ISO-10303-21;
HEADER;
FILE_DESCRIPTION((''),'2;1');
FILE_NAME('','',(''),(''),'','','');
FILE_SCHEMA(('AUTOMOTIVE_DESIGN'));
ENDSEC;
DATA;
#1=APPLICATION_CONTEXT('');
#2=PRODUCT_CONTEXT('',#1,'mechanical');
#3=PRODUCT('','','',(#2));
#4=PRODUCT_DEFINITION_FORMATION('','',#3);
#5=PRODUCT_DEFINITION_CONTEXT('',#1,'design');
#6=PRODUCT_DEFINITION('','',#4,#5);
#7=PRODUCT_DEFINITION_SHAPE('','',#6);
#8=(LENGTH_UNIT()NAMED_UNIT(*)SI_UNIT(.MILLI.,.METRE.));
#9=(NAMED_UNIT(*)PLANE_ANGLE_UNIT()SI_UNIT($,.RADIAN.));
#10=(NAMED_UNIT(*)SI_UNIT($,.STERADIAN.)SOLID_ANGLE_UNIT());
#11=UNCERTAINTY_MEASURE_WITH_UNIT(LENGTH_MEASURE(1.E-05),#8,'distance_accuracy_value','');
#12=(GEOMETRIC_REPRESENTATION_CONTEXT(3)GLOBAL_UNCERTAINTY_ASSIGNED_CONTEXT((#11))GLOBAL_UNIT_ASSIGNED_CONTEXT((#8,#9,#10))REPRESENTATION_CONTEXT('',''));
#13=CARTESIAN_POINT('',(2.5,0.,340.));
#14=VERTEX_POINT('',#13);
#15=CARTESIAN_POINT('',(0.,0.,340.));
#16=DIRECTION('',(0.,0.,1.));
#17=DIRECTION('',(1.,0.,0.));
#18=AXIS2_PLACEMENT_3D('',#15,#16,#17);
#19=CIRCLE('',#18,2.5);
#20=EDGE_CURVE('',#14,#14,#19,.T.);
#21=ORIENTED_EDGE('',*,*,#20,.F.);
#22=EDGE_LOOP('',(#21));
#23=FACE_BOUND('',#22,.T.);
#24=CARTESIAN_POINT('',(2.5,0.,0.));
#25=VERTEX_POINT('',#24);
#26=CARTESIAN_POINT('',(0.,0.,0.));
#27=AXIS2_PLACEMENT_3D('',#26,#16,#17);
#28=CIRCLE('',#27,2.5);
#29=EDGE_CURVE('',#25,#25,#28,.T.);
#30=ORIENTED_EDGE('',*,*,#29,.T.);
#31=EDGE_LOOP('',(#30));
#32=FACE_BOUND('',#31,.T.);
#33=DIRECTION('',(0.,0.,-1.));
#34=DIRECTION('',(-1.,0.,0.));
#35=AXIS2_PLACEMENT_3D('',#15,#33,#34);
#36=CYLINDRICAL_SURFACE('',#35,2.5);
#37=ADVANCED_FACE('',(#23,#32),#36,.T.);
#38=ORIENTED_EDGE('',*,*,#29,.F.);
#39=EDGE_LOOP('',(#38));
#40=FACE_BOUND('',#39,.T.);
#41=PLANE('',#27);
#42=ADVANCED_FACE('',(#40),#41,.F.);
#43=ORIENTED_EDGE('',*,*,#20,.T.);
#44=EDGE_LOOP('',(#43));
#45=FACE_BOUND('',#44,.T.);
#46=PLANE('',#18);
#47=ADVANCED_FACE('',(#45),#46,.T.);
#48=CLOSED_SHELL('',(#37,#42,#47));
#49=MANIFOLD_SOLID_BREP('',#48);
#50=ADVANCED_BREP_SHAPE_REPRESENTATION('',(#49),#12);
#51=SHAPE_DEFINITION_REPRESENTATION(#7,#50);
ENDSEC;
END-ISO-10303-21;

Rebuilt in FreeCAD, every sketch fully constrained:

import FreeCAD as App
import Part
import Sketcher

doc = App.newDocument("Part")
body = doc.addObject("PartDesign::Body", "Body")

sketch1 = body.newObject("Sketcher::SketchObject", "Sketch")
sketch1.AttachmentSupport = (doc.getObject("XY_Plane"), [""])
sketch1.MapMode = "FlatFace"
sketch1.addGeometry(Part.Circle(App.Vector(0, 0, 0), App.Vector(0, 0, 1), 2.5), False)
sketch1.addConstraint(Sketcher.Constraint("Coincident", 0, 3, -1, 1))
sketch1.addConstraint(Sketcher.Constraint("Diameter", 0, 5.0))
pad1 = body.newObject("PartDesign::Pad", "Pad")
pad1.Profile = sketch1
pad1.Length = 340

doc.recompute()
